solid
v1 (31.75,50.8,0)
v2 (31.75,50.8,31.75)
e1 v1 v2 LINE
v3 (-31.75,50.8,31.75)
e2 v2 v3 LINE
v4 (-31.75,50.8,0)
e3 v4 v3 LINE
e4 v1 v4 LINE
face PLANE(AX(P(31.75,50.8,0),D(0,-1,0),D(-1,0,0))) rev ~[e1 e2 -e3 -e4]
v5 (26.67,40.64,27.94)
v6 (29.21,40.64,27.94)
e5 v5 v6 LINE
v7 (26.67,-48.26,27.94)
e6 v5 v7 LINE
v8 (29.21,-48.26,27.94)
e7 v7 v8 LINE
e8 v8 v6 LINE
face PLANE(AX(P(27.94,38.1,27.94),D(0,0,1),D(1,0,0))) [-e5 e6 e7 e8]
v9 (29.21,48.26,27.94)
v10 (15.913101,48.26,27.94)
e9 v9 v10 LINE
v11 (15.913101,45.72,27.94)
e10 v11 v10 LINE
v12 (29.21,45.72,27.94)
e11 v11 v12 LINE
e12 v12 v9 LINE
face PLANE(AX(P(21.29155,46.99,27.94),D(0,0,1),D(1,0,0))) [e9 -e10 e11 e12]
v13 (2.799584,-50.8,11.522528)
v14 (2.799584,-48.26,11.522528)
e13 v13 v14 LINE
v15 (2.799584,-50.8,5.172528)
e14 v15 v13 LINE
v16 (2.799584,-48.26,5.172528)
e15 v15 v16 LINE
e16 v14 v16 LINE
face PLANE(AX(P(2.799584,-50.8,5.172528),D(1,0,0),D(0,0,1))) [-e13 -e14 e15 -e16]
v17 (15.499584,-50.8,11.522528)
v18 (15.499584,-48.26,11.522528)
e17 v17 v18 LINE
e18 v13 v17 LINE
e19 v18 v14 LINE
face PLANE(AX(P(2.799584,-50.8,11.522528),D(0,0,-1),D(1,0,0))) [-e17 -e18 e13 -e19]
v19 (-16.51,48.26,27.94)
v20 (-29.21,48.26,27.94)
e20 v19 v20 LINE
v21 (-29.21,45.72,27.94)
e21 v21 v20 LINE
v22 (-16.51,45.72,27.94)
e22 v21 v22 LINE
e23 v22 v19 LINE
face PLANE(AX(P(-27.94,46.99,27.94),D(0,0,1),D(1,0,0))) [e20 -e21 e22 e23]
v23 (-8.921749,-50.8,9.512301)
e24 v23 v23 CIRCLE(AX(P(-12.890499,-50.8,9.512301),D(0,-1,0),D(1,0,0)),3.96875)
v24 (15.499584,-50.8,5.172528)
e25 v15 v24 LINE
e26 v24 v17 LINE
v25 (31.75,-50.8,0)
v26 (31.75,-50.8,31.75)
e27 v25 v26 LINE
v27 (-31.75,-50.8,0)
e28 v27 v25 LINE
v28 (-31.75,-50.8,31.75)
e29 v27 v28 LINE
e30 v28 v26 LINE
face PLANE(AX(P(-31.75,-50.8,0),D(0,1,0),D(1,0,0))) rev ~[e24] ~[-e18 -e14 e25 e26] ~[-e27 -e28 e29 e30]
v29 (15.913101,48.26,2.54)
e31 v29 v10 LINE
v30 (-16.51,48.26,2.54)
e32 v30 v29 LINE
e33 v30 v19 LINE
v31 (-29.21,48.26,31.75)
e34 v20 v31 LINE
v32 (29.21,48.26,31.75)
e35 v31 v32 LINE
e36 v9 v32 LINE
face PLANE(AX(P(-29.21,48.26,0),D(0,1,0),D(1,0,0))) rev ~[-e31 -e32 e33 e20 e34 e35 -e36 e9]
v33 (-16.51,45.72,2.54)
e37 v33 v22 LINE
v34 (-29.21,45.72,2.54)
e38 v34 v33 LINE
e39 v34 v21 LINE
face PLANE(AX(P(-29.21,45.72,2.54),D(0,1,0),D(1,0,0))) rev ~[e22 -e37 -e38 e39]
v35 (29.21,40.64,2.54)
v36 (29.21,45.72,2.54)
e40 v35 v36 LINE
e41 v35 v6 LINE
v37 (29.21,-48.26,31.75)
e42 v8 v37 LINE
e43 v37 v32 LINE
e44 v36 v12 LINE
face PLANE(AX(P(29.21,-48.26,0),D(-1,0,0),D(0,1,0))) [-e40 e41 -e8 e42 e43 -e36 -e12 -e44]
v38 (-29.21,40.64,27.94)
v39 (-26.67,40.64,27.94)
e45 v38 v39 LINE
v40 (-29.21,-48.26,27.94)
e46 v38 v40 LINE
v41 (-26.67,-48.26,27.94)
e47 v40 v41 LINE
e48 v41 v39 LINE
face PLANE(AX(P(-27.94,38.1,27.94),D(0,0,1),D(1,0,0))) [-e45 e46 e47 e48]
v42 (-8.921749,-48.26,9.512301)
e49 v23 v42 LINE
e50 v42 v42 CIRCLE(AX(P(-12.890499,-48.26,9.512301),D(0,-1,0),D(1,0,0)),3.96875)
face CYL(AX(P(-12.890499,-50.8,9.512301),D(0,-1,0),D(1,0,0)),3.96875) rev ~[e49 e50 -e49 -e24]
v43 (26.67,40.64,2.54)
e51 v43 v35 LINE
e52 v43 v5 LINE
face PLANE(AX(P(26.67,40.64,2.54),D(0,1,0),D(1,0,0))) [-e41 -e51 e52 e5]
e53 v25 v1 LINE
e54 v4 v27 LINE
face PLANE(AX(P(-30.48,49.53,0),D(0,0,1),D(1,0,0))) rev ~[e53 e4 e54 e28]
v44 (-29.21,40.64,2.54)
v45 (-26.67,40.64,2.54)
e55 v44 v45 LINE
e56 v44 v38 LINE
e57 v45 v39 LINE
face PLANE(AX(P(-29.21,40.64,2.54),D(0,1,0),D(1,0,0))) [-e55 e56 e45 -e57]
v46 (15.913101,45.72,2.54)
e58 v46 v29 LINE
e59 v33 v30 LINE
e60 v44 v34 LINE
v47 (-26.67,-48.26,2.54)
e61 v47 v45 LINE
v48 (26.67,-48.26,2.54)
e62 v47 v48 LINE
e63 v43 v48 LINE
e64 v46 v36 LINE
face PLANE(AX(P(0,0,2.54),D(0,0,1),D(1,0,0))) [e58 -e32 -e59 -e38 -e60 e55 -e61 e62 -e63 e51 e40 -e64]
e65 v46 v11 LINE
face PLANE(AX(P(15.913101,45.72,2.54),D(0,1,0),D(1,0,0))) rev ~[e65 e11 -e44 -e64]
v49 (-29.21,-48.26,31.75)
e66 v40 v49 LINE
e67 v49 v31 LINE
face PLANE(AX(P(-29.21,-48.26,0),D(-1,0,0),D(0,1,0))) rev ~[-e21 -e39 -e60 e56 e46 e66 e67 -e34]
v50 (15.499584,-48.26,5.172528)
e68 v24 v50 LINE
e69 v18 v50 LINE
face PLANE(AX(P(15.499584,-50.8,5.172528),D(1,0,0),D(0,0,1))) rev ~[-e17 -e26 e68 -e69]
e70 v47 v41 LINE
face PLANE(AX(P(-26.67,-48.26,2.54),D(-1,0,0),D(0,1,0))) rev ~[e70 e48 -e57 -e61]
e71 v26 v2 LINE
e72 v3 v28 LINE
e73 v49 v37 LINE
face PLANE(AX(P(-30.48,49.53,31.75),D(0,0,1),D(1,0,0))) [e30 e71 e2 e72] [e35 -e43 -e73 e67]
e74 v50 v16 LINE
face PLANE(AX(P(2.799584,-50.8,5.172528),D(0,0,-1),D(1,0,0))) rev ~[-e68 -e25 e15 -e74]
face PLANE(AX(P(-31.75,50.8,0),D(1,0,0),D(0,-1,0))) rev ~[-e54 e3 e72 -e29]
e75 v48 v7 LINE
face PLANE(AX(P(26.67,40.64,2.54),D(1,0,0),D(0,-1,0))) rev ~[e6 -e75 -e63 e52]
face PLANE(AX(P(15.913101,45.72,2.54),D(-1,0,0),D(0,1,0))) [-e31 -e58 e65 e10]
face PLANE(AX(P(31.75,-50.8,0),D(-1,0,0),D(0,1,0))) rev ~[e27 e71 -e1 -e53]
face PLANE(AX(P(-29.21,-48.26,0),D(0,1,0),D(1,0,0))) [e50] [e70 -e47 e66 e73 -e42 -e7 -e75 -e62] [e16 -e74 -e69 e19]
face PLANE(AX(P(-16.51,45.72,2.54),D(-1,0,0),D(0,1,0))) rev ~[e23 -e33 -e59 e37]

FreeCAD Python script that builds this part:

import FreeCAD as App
import Part
import Sketcher
Q = App.Units.Quantity

doc = App.newDocument("Part")
body = doc.addObject("PartDesign::Body", "Body")

# Sketch on XY plane
sketch1 = body.newObject("Sketcher::SketchObject", "Sketch")
sketch1.AttachmentSupport = (doc.getObject("XY_Plane"), [""])
sketch1.MapMode = "FlatFace"
sketch1.addGeometry([
    Part.LineSegment(App.Vector(-29, 48, 0), App.Vector(-29, -48, 0)),
    Part.LineSegment(App.Vector(-29, -48, 0), App.Vector(29, -48, 0)),
    Part.LineSegment(App.Vector(29, -48, 0), App.Vector(29, 48, 0)),
    Part.LineSegment(App.Vector(29, 48, 0), App.Vector(-29, 48, 0)),
], False)
sketch1.addConstraint([
    Sketcher.Constraint("Coincident", 0, 2, 1, 1),
    Sketcher.Constraint("Coincident", 1, 2, 2, 1),
    Sketcher.Constraint("Coincident", 2, 2, 3, 1),
    Sketcher.Constraint("Coincident", 3, 2, 0, 1),
    Sketcher.Constraint("Vertical", 0),
    Sketcher.Constraint("Horizontal", 1),
    Sketcher.Constraint("Vertical", 2),
    Sketcher.Constraint("Horizontal", 3),
    Sketcher.Constraint("Symmetric", 0, 2, 2, 2, -1, 1),
    Sketcher.Constraint("DistanceX", 1, 1, 1, 2, Q("2.3 in")),
    Sketcher.Constraint("DistanceY", 0, 2, 0, 1, Q("3.8 in")),
])
pad1 = body.newObject("PartDesign::Pad", "Pad")
pad1.Profile = sketch1
pad1.Length = Q("0.1 in")

# Sketch on XY plane
sketch2 = body.newObject("Sketcher::SketchObject", "Sketch001")
sketch2.AttachmentSupport = (doc.getObject("XY_Plane"), [""])
sketch2.MapMode = "FlatFace"
sketch2.addGeometry([
    Part.LineSegment(App.Vector(-32, -51, 0), App.Vector(32, -51, 0)),  # 0
    Part.LineSegment(App.Vector(32, -51, 0), App.Vector(32, 51, 0)),  # 1
    Part.LineSegment(App.Vector(32, 51, 0), App.Vector(-32, 51, 0)),  # 2
    Part.LineSegment(App.Vector(-32, 51, 0), App.Vector(-32, -51, 0)),  # 3
    Part.LineSegment(App.Vector(29, -48, 0), App.Vector(-29, -48, 0)),  # 4
    Part.LineSegment(App.Vector(-29, -48, 0), App.Vector(-29, 48, 0)),  # 5
    Part.LineSegment(App.Vector(-29, 48, 0), App.Vector(29, 48, 0)),  # 6
    Part.LineSegment(App.Vector(29, 48, 0), App.Vector(29, -48, 0)),  # 7
], False)
sketch2.addConstraint([
    Sketcher.Constraint("Coincident", 0, 2, 1, 1),
    Sketcher.Constraint("Coincident", 1, 2, 2, 1),
    Sketcher.Constraint("Coincident", 2, 2, 3, 1),
    Sketcher.Constraint("Coincident", 3, 2, 0, 1),
    Sketcher.Constraint("Coincident", 4, 2, 5, 1),
    Sketcher.Constraint("Coincident", 5, 2, 6, 1),
    Sketcher.Constraint("Coincident", 6, 2, 7, 1),
    Sketcher.Constraint("Coincident", 7, 2, 4, 1),
    Sketcher.Constraint("Horizontal", 0),
    Sketcher.Constraint("Vertical", 1),
    Sketcher.Constraint("Horizontal", 2),
    Sketcher.Constraint("Vertical", 3),
    Sketcher.Constraint("Horizontal", 4),
    Sketcher.Constraint("Vertical", 5),
    Sketcher.Constraint("Horizontal", 6),
    Sketcher.Constraint("Vertical", 7),
    Sketcher.Constraint("Symmetric", 0, 2, 2, 2, -1, 1),
    Sketcher.Constraint("Symmetric", 4, 2, 6, 2, -1, 1),
    Sketcher.Constraint("DistanceY", 1, 1, 1, 2, Q("4 in")),
    Sketcher.Constraint("DistanceX", 0, 1, 0, 2, Q("2.5 in")),
    Sketcher.Constraint("DistanceX", 4, 2, 4, 1, Q("2.3 in")),
    Sketcher.Constraint("DistanceY", 5, 1, 5, 2, Q("3.8 in")),
])
pad2 = body.newObject("PartDesign::Pad", "Pad001")
pad2.Profile = sketch2
pad2.Length = Q("1.25 in")

# Sketch on XY plane
sketch3 = body.newObject("Sketcher::SketchObject", "Sketch002")
sketch3.AttachmentSupport = (doc.getObject("XY_Plane"), [""])
sketch3.MapMode = "FlatFace"
sketch3.AttachmentOffset = App.Placement(App.Vector(0, 0, 0.1 * 25.4), App.Rotation())
sketch3.addGeometry([
    Part.LineSegment(App.Vector(-29.2, 40.6, 0), App.Vector(-29.2, -48.3, 0)),  # 0
    Part.LineSegment(App.Vector(-29.2, -48.3, 0), App.Vector(-26.7, -48.3, 0)),  # 1
    Part.LineSegment(App.Vector(-26.7, -48.3, 0), App.Vector(-26.7, 40.6, 0)),  # 2
    Part.LineSegment(App.Vector(-26.7, 40.6, 0), App.Vector(-29.2, 40.6, 0)),  # 3
    Part.LineSegment(App.Vector(-29.2, 48.3, 0), App.Vector(-29.2, 45.7, 0)),  # 4
    Part.LineSegment(App.Vector(-29.2, 45.7, 0), App.Vector(-16.5, 45.7, 0)),  # 5
    Part.LineSegment(App.Vector(-16.5, 45.7, 0), App.Vector(-16.5, 48.3, 0)),  # 6
    Part.LineSegment(App.Vector(-16.5, 48.3, 0), App.Vector(-29.2, 48.3, 0)),  # 7
    Part.LineSegment(App.Vector(15.9, 48.3, 0), App.Vector(15.9, 45.7, 0)),  # 8
    Part.LineSegment(App.Vector(15.9, 45.7, 0), App.Vector(29.2, 45.7, 0)),  # 9
    Part.LineSegment(App.Vector(29.2, 45.7, 0), App.Vector(29.2, 48.3, 0)),  # 10
    Part.LineSegment(App.Vector(29.2, 48.3, 0), App.Vector(15.9, 48.3, 0)),  # 11
    Part.LineSegment(App.Vector(26.7, 40.6, 0), App.Vector(26.7, -48.3, 0)),  # 12
    Part.LineSegment(App.Vector(26.7, -48.3, 0), App.Vector(29.2, -48.3, 0)),  # 13
    Part.LineSegment(App.Vector(29.2, -48.3, 0), App.Vector(29.2, 40.6, 0)),  # 14
    Part.LineSegment(App.Vector(29.2, 40.6, 0), App.Vector(26.7, 40.6, 0)),  # 15
], False)
sketch3.addConstraint([
    Sketcher.Constraint("Coincident", 0, 2, 1, 1),
    Sketcher.Constraint("Coincident", 1, 2, 2, 1),
    Sketcher.Constraint("Coincident", 2, 2, 3, 1),
    Sketcher.Constraint("Coincident", 3, 2, 0, 1),
    Sketcher.Constraint("Coincident", 4, 2, 5, 1),
    Sketcher.Constraint("Coincident", 5, 2, 6, 1),
    Sketcher.Constraint("Coincident", 6, 2, 7, 1),
    Sketcher.Constraint("Coincident", 7, 2, 4, 1),
    Sketcher.Constraint("Coincident", 8, 2, 9, 1),
    Sketcher.Constraint("Coincident", 9, 2, 10, 1),
    Sketcher.Constraint("Coincident", 10, 2, 11, 1),
    Sketcher.Constraint("Coincident", 11, 2, 8, 1),
    Sketcher.Constraint("Coincident", 12, 2, 13, 1),
    Sketcher.Constraint("Coincident", 13, 2, 14, 1),
    Sketcher.Constraint("Coincident", 14, 2, 15, 1),
    Sketcher.Constraint("Coincident", 15, 2, 12, 1),
    Sketcher.Constraint("Vertical", 0),
    Sketcher.Constraint("Horizontal", 1),
    Sketcher.Constraint("Vertical", 2),
    Sketcher.Constraint("Horizontal", 3),
    Sketcher.Constraint("Vertical", 4),
    Sketcher.Constraint("Horizontal", 5),
    Sketcher.Constraint("Vertical", 6),
    Sketcher.Constraint("Horizontal", 7),
    Sketcher.Constraint("Vertical", 8),
    Sketcher.Constraint("Horizontal", 9),
    Sketcher.Constraint("Vertical", 10),
    Sketcher.Constraint("Horizontal", 11),
    Sketcher.Constraint("Vertical", 12),
    Sketcher.Constraint("Horizontal", 13),
    Sketcher.Constraint("Vertical", 14),
    Sketcher.Constraint("Horizontal", 15),
    Sketcher.Constraint("Symmetric", 0, 2, 10, 2, -1, 1),
    Sketcher.Constraint("Symmetric", 7, 2, 13, 2, -1, 1),
    Sketcher.Constraint("Symmetric", 4, 2, 9, 2, -2),
    Sketcher.Constraint("Symmetric", 1, 2, 12, 2, -2),
    Sketcher.Constraint("Horizontal", 3, 2, 14, 2),
    Sketcher.Constraint("Equal", 15, 4),
    Sketcher.Constraint("DistanceX", 1, 1, 1, 2, Q("0.1 in")),
    Sketcher.Constraint("DistanceX", 5, 1, 5, 2, Q("0.5 in")),
    Sketcher.Constraint("DistanceY", 0, 2, 0, 1, Q("3.5 in")),
    Sketcher.Constraint("DistanceY", 0, 2, -1, 1, Q("1.9 in")),
    Sketcher.Constraint("DistanceX", 5, 2, 9, 2, Q("1.8 in")),
    Sketcher.Constraint("DistanceX", 9, 1, 9, 2, Q("0.5235 in")),
])
pad3 = body.newObject("PartDesign::Pad", "Pad002")
pad3.Profile = sketch3
pad3.Length = Q("1 in")

# Sketch on XZ plane
sketch4 = body.newObject("Sketcher::SketchObject", "Sketch003")
sketch4.AttachmentSupport = (doc.getObject("XZ_Plane"), [""])
sketch4.MapMode = "FlatFace"
sketch4.AttachmentOffset = App.Placement(App.Vector(0, 0, 2 * 25.4), App.Rotation())
sketch4.addGeometry([
    Part.Circle(App.Vector(-12.9, 9.5, 0), App.Vector(0, 0, 1), 4),  # 0
    Part.LineSegment(App.Vector(2.8, 11.5, 0), App.Vector(2.8, 5.2, 0)),  # 1
    Part.LineSegment(App.Vector(2.8, 5.2, 0), App.Vector(15.5, 5.2, 0)),  # 2
    Part.LineSegment(App.Vector(15.5, 5.2, 0), App.Vector(15.5, 11.5, 0)),  # 3
    Part.LineSegment(App.Vector(15.5, 11.5, 0), App.Vector(2.8, 11.5, 0)),  # 4
], False)
sketch4.addConstraint([
    Sketcher.Constraint("Coincident", 1, 2, 2, 1),
    Sketcher.Constraint("Coincident", 2, 2, 3, 1),
    Sketcher.Constraint("Coincident", 3, 2, 4, 1),
    Sketcher.Constraint("Coincident", 4, 2, 1, 1),
    Sketcher.Constraint("Vertical", 1),
    Sketcher.Constraint("Horizontal", 2),
    Sketcher.Constraint("Vertical", 3),
    Sketcher.Constraint("Horizontal", 4),
    Sketcher.Constraint("Diameter", 0, Q("0.3125 in")),
    Sketcher.Constraint("DistanceX", 2, 1, 2, 2, Q("0.5 in")),
    Sketcher.Constraint("DistanceY", 1, 2, 1, 1, Q("0.25 in")),
    Sketcher.Constraint("DistanceX", 0, 3, -1, 1, Q("0.5075 in")),
    Sketcher.Constraint("DistanceY", -1, 1, 0, 3, Q("0.3745 in")),
    Sketcher.Constraint("DistanceX", -1, 1, 1, 2, 2.799584),
    Sketcher.Constraint("DistanceY", -1, 1, 1, 2, 5.172528),
])
pocket1 = body.newObject("PartDesign::Pocket", "Pocket")
pocket1.Profile = sketch4
pocket1.Length = Q("1 in")

doc.recompute()
